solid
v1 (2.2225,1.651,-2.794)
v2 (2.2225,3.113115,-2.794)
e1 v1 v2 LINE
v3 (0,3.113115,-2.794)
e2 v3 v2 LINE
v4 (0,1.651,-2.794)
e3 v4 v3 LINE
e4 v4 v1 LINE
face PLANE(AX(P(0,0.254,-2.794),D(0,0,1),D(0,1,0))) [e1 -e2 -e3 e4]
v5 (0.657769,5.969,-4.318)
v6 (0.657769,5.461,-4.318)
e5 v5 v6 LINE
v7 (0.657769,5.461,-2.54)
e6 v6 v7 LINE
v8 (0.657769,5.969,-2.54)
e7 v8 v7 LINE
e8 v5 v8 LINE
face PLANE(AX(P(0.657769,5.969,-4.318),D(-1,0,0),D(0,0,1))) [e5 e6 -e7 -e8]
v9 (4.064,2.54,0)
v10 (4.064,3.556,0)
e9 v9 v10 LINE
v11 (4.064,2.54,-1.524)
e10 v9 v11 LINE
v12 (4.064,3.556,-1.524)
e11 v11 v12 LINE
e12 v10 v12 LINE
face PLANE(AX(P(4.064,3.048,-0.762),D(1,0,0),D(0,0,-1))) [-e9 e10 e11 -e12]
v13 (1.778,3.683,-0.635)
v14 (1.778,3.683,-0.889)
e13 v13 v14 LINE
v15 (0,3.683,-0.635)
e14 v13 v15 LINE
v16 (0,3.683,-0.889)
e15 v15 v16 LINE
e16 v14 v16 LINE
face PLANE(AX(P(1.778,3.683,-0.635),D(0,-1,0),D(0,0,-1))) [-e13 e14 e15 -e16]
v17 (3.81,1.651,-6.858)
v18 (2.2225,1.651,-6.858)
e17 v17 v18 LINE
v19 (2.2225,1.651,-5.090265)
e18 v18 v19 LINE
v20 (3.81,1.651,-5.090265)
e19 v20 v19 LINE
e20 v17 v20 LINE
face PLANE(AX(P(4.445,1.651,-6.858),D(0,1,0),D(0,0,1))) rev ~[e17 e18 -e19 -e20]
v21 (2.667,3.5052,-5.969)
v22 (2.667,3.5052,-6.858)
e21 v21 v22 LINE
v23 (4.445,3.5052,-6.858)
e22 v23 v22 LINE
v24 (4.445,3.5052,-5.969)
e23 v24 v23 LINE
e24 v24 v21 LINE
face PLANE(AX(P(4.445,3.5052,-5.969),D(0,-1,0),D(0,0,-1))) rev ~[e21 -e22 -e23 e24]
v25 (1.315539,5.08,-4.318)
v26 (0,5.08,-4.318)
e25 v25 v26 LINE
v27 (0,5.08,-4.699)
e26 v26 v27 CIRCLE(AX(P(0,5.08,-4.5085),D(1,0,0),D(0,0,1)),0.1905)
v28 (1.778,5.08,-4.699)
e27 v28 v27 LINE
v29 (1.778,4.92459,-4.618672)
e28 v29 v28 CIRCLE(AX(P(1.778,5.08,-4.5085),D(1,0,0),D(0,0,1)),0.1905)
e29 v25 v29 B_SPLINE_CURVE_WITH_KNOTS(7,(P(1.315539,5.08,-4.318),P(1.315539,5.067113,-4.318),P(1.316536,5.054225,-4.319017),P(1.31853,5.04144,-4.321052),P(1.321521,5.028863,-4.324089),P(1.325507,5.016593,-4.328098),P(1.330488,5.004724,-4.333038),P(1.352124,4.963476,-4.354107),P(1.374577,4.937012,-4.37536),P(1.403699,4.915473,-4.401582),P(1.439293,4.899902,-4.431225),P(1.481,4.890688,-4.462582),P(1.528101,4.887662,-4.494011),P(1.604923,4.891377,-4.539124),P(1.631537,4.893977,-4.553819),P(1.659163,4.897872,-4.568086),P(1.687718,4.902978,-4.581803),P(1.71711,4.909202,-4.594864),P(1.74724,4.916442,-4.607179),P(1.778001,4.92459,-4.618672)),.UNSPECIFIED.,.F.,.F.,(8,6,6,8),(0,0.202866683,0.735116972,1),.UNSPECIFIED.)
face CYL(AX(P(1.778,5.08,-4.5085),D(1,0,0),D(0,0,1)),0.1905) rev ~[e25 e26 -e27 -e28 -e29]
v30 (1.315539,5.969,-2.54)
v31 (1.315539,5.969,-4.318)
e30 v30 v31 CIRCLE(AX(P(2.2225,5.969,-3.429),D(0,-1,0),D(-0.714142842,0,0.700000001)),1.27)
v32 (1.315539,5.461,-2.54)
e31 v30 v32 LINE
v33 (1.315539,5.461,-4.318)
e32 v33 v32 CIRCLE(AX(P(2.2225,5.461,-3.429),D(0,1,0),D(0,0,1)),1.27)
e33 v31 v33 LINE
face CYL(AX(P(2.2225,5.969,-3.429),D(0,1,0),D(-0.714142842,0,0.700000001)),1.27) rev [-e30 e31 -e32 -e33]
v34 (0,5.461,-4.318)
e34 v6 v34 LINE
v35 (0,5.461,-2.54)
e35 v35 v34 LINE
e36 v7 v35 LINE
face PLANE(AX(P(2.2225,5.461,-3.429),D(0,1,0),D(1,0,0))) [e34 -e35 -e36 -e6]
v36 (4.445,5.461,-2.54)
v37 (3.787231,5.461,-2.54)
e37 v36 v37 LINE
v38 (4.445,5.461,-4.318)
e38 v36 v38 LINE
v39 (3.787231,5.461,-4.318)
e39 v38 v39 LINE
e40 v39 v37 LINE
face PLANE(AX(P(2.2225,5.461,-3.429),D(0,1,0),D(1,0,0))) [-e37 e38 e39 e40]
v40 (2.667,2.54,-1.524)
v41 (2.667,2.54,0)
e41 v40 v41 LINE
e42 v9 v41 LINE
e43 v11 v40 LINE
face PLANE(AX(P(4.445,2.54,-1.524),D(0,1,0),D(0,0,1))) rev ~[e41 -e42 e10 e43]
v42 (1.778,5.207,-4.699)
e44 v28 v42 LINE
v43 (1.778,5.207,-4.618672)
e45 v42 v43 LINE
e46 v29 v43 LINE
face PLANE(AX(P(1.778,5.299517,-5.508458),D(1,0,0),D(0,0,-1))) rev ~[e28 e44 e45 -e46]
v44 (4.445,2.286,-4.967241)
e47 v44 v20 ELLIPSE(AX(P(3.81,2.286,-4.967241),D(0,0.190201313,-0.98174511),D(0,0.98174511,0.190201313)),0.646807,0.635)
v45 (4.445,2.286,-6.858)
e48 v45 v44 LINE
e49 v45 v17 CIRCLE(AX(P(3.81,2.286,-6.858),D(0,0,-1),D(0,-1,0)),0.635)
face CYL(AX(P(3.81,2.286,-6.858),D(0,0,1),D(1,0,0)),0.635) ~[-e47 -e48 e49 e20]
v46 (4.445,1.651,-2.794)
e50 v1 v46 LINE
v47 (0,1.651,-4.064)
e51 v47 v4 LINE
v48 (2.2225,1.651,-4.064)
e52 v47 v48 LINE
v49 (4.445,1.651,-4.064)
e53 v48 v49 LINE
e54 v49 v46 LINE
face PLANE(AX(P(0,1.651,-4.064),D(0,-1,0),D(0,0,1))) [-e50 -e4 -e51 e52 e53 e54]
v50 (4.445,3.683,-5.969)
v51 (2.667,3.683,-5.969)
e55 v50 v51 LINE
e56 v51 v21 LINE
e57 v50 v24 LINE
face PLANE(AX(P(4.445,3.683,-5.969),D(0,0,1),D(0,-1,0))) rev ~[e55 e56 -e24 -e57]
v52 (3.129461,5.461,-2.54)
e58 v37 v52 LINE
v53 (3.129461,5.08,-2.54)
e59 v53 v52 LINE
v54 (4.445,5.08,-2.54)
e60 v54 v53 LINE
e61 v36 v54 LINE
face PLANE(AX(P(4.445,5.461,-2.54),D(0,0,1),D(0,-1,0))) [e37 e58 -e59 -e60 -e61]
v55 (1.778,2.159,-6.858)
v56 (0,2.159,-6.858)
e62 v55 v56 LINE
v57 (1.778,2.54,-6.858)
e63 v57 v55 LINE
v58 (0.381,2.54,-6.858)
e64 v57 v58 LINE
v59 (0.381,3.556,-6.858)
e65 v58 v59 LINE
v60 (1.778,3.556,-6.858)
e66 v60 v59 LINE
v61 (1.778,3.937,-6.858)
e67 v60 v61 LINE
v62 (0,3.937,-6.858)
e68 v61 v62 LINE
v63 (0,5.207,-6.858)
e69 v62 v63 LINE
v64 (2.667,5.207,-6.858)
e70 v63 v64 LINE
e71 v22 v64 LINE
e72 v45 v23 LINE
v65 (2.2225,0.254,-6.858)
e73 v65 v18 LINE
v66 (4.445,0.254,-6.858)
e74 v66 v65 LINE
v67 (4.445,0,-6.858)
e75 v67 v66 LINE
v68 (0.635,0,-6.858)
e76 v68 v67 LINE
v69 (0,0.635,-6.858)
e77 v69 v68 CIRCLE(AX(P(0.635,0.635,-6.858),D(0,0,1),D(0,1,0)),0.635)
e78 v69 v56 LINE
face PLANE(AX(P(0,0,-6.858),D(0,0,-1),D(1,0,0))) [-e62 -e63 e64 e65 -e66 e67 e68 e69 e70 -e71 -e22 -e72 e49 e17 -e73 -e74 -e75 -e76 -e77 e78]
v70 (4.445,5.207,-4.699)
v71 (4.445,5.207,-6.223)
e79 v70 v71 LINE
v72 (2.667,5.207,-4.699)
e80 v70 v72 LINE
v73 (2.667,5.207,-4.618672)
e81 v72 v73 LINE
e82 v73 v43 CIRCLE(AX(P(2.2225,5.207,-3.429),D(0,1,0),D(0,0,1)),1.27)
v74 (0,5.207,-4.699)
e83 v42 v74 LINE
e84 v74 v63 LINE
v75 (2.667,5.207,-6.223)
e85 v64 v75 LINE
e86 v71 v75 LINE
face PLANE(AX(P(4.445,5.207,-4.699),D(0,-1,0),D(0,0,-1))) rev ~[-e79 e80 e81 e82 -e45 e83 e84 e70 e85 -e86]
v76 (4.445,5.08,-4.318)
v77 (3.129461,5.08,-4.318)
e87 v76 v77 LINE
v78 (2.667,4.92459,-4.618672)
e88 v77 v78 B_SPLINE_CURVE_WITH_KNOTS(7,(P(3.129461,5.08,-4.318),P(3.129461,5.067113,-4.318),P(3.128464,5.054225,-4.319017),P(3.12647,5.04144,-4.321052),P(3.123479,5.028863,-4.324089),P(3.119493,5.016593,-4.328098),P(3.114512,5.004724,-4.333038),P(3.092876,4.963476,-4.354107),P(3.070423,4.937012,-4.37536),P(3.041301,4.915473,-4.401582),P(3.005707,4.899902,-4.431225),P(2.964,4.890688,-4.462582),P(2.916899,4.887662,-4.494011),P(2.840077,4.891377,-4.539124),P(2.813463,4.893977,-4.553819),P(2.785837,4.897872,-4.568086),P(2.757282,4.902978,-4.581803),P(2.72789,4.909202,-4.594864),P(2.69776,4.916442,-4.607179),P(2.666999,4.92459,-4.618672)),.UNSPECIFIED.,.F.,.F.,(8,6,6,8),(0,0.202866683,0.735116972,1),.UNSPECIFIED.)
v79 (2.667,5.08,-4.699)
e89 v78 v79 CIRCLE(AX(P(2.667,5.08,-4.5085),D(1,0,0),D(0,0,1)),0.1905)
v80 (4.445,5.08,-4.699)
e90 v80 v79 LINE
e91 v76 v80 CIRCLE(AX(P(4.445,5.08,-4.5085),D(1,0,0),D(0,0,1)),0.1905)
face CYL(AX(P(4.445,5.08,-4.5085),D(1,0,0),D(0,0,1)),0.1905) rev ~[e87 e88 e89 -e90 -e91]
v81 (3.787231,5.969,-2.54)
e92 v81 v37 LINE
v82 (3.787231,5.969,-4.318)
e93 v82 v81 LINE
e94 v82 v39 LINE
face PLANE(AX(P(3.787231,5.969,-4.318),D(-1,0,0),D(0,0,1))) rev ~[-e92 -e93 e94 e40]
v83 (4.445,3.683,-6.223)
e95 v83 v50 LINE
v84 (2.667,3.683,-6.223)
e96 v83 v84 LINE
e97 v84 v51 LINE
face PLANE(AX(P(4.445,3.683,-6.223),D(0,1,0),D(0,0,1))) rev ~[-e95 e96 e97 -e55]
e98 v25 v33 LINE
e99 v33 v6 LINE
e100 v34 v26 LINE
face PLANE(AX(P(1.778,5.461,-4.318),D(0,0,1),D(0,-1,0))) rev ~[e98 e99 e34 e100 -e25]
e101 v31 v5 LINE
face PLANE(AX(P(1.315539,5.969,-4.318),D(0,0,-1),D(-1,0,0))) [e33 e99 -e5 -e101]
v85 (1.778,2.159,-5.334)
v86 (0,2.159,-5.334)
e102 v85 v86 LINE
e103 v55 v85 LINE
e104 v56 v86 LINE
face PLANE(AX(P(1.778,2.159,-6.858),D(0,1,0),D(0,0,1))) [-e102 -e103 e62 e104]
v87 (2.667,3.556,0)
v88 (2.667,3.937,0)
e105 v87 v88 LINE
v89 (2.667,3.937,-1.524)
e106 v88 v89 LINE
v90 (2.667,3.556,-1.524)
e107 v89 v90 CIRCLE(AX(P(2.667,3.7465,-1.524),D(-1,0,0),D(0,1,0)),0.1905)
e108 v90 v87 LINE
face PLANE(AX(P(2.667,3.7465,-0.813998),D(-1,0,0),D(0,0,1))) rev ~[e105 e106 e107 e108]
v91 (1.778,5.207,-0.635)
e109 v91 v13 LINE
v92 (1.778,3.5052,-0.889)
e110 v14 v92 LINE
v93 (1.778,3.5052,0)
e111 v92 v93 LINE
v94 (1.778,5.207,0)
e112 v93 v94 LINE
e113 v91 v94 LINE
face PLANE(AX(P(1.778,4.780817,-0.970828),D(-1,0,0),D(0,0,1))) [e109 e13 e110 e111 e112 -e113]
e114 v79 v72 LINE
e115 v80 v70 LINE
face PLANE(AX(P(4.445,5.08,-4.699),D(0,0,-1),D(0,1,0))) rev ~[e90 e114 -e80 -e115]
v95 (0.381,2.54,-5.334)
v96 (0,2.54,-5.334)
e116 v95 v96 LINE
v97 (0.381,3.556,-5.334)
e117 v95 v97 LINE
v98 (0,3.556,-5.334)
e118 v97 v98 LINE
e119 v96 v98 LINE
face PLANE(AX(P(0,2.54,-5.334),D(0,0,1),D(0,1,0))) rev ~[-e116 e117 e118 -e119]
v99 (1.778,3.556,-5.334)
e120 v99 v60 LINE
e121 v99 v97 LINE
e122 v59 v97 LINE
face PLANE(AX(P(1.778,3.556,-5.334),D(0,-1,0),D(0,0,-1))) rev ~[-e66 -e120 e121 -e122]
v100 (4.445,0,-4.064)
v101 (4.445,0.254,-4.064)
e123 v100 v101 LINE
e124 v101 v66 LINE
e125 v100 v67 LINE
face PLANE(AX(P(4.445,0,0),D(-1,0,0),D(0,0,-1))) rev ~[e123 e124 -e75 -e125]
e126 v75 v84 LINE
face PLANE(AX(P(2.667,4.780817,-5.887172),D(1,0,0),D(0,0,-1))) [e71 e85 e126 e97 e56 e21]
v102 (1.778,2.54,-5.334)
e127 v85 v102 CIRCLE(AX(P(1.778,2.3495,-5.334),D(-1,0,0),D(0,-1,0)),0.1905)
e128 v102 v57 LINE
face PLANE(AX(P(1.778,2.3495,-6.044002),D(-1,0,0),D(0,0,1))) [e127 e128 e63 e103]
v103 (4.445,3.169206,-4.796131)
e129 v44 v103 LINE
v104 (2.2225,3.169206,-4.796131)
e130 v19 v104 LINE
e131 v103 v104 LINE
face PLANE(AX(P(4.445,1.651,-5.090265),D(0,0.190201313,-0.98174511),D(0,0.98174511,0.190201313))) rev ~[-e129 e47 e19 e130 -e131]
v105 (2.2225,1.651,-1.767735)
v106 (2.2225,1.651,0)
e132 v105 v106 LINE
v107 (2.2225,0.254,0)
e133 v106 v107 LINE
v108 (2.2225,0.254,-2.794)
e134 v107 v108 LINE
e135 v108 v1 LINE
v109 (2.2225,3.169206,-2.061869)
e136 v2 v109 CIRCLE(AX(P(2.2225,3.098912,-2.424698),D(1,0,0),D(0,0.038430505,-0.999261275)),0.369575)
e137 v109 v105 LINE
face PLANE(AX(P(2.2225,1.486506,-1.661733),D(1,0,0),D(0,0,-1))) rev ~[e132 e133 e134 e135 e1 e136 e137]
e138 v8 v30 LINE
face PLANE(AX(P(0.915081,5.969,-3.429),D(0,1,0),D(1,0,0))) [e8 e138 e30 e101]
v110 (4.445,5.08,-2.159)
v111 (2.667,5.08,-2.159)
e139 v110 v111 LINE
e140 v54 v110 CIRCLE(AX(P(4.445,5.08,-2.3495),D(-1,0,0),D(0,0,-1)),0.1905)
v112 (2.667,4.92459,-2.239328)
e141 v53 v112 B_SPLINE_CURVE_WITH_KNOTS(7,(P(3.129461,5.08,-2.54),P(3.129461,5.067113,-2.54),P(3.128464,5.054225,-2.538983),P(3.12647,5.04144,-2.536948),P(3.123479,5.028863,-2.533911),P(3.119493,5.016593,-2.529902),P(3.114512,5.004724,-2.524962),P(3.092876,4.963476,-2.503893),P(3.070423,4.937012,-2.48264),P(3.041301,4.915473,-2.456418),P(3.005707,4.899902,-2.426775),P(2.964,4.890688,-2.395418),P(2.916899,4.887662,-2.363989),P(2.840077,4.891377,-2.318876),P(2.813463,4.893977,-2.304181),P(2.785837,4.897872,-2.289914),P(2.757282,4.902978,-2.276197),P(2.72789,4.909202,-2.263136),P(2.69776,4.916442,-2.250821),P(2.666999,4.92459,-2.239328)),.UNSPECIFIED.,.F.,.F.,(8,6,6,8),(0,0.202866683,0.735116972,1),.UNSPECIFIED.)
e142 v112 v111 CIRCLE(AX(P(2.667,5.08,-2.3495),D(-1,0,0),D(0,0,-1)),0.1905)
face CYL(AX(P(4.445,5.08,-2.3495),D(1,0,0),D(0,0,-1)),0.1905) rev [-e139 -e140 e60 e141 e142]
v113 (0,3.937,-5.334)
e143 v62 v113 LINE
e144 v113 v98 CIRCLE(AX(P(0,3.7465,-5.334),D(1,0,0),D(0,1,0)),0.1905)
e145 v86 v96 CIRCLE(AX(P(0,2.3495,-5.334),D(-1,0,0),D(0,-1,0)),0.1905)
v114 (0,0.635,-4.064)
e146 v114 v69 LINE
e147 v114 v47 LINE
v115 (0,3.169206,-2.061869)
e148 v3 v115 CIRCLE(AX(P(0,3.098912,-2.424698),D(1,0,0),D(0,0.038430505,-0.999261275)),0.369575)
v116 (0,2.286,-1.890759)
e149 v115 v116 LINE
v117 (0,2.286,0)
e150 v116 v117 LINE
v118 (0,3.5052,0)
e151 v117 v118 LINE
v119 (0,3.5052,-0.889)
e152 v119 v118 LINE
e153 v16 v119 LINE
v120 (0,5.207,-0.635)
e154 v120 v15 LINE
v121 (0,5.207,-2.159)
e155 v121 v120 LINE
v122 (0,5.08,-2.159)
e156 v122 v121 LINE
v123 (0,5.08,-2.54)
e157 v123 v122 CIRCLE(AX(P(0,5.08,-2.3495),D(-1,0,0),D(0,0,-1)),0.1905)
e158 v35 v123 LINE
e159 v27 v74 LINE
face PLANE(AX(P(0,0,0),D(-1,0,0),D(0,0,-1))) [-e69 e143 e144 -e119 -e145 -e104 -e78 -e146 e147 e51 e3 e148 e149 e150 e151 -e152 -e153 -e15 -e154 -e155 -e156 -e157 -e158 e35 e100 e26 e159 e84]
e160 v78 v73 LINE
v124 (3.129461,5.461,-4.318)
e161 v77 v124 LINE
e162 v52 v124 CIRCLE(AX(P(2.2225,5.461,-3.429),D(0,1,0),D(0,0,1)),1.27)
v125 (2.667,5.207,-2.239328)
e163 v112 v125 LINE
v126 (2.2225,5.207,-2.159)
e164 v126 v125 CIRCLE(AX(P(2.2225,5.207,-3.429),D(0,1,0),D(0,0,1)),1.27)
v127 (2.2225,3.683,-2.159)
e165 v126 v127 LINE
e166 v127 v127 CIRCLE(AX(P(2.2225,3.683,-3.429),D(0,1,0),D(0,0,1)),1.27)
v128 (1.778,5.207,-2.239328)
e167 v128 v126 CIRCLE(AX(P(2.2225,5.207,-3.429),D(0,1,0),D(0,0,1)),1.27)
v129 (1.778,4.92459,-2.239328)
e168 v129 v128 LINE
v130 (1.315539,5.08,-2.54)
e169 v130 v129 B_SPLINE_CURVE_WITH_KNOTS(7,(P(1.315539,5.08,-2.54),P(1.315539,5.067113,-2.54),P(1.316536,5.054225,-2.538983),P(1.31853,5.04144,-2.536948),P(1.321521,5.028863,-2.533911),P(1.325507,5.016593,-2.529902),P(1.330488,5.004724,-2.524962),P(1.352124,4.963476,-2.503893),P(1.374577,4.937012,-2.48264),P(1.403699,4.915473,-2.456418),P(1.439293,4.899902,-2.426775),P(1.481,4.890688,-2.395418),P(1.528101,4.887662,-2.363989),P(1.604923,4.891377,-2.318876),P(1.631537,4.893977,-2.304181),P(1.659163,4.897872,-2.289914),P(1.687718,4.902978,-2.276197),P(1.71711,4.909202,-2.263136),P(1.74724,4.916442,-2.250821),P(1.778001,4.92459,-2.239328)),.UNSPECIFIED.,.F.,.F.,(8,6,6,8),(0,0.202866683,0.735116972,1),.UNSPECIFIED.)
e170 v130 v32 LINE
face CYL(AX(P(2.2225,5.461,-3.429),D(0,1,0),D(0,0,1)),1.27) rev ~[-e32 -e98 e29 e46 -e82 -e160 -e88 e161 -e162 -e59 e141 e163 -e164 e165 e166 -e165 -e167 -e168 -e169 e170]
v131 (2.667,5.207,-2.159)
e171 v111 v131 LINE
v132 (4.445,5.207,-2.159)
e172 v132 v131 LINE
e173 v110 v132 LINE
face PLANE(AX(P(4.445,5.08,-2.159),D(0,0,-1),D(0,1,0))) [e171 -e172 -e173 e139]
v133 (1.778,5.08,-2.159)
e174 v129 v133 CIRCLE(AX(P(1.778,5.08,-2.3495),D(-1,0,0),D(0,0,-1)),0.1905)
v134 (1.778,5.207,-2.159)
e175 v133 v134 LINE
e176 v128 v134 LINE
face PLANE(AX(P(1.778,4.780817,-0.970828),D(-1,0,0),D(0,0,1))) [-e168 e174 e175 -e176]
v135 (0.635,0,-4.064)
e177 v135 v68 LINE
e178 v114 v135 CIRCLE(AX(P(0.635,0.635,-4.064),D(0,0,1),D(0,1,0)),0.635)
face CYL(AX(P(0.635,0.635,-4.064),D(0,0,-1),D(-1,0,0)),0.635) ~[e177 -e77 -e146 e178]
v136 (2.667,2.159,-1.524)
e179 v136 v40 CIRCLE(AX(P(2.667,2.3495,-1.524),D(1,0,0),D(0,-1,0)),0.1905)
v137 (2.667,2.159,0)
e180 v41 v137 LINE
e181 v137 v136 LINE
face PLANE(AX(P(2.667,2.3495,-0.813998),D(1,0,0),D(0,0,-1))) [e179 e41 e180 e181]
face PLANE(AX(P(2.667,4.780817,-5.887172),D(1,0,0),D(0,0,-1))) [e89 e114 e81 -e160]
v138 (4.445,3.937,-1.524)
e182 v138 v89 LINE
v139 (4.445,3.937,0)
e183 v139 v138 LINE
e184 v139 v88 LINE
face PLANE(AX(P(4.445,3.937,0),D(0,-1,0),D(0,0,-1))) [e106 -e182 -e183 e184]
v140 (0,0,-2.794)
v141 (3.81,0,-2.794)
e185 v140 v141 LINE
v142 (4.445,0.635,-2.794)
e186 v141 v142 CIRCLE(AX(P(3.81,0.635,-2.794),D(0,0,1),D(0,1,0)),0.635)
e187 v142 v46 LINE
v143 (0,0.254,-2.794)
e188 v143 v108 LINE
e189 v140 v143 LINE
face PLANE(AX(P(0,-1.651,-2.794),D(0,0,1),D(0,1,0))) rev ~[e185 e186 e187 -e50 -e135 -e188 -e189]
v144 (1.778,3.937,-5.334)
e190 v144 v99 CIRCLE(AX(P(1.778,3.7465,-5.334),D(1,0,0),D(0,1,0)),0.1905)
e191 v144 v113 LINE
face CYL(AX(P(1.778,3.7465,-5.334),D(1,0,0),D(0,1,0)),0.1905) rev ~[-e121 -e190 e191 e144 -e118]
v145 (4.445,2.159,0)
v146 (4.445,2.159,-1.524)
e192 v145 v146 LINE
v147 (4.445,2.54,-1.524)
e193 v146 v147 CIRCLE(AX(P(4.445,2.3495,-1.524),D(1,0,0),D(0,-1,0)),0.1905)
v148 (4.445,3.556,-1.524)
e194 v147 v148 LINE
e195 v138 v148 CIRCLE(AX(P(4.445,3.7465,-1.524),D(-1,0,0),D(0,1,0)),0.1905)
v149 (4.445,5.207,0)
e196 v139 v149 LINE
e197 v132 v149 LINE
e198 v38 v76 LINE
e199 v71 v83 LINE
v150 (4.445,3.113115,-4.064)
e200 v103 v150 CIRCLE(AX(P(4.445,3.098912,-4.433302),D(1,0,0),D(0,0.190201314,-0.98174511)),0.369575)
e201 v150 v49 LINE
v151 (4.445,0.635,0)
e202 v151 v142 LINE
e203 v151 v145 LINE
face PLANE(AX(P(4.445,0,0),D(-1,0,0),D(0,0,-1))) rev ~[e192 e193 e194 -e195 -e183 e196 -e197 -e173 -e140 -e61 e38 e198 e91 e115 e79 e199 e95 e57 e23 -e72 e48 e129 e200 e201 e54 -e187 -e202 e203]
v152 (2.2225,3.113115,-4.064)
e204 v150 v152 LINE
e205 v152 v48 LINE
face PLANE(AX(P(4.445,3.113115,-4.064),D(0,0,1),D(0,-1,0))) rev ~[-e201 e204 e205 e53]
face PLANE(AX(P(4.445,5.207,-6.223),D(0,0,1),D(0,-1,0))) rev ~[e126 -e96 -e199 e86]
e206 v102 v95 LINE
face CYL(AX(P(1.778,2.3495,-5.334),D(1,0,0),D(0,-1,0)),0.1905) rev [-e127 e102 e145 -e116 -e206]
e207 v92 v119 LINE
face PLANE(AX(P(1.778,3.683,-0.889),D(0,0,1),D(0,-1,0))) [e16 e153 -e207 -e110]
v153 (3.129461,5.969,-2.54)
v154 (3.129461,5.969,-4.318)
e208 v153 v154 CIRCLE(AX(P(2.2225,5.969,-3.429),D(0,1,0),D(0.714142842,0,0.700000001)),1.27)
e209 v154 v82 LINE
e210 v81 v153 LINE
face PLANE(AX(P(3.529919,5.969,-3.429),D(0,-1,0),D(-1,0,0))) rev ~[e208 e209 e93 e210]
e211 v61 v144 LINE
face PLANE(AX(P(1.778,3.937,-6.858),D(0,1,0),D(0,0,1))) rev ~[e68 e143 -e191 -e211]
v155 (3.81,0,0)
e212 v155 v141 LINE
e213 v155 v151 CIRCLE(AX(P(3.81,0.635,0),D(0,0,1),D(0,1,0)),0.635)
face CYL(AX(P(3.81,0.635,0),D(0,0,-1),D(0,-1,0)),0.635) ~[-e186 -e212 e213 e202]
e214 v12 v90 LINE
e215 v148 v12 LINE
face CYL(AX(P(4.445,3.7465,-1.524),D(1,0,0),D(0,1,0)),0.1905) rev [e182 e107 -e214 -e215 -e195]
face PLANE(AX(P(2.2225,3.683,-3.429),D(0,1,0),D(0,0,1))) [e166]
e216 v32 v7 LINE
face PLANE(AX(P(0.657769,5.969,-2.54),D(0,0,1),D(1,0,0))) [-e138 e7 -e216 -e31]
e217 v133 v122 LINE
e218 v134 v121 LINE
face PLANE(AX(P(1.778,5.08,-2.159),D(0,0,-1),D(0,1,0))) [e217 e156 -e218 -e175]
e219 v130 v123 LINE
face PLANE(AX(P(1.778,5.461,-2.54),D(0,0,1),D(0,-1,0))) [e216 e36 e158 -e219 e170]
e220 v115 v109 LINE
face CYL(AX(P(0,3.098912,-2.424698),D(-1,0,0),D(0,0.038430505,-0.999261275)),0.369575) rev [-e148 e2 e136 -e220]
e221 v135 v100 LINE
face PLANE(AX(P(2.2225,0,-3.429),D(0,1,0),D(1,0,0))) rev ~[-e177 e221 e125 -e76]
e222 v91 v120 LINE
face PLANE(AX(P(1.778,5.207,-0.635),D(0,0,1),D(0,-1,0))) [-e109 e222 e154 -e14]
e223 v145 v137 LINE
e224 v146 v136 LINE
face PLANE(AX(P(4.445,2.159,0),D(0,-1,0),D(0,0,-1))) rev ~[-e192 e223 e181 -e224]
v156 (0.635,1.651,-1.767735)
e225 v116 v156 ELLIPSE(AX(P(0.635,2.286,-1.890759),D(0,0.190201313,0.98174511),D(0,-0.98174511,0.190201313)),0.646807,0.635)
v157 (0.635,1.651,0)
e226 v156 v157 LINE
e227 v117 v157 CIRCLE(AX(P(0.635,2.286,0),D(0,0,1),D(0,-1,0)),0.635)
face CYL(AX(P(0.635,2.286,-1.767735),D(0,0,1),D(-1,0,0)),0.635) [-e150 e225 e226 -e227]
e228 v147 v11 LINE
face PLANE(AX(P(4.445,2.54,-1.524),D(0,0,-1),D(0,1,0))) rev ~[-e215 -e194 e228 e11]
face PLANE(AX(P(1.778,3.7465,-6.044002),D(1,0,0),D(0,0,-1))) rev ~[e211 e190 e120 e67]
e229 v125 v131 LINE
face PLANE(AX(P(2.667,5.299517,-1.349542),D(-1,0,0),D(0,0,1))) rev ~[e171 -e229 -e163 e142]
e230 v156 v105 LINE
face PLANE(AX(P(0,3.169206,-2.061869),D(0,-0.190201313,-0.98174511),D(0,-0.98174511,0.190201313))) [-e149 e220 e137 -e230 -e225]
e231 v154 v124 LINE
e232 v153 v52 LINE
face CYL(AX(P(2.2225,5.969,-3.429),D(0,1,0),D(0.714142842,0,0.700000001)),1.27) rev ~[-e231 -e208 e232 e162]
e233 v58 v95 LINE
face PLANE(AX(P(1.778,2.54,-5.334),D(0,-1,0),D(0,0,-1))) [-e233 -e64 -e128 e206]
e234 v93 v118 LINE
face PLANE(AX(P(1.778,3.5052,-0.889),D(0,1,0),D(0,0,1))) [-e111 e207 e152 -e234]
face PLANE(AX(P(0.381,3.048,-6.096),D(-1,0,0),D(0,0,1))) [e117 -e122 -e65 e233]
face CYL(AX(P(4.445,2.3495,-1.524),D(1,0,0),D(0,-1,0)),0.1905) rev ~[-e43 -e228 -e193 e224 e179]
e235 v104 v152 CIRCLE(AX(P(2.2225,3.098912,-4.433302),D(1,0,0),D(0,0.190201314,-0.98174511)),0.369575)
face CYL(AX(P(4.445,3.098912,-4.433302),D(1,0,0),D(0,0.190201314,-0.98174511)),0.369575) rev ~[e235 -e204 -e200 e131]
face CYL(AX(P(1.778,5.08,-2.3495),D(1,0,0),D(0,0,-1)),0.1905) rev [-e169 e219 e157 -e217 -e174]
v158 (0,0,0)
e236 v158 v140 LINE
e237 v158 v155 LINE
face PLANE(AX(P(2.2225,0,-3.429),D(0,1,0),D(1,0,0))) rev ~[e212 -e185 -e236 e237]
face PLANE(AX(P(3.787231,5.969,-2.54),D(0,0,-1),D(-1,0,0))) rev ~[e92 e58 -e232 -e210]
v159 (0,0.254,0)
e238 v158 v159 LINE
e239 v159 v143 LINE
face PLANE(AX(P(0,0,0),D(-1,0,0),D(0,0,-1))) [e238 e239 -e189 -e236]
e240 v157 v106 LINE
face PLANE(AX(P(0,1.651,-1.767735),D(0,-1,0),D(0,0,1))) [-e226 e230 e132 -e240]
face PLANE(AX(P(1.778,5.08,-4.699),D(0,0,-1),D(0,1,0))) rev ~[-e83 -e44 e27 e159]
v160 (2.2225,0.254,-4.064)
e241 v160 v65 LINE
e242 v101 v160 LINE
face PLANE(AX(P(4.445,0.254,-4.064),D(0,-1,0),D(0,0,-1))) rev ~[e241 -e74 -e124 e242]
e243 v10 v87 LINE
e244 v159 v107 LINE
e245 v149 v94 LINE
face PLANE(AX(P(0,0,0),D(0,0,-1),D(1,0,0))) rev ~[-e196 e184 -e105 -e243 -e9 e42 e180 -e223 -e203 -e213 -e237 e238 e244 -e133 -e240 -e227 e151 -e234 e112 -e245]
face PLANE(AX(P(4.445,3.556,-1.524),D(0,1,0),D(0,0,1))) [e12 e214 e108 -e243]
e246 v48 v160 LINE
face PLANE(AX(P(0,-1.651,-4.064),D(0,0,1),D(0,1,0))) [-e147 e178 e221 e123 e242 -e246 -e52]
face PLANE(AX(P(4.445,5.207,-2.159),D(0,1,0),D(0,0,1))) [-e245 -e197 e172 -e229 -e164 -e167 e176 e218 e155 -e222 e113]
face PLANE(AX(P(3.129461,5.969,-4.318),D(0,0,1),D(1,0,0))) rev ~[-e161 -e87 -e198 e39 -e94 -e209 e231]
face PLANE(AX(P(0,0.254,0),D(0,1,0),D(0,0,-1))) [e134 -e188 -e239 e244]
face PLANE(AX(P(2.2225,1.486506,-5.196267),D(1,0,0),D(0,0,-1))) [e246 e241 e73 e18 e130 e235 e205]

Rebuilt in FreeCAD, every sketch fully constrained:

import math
import FreeCAD as App
import Part
import Sketcher
from FreeCAD import Vector
Q = App.Units.Quantity


def edges_at(feature, points):
    """Names of the edges that pass closest to the given points."""
    edges = feature.Shape.Edges
    near = lambda p: min(range(len(edges)), key=lambda i: edges[i].distToShape(Part.Vertex(*p))[0])
    return sorted({f"Edge{near(p) + 1}" for p in points})

doc = App.newDocument("Part")
body = doc.addObject("PartDesign::Body", "Body")

# Sketch on XZ plane
sketch1 = body.newObject("Sketcher::SketchObject", "Sketch")
sketch1.AttachmentSupport = (doc.getObject("XZ_Plane"), [""])
sketch1.MapMode = "FlatFace"
sketch1.addGeometry([
    Part.LineSegment(Vector(0, -6.9, 0), Vector(0, 0, 0)),
    Part.LineSegment(Vector(0, 0, 0), Vector(4.4, 0, 0)),
    Part.LineSegment(Vector(4.4, 0, 0), Vector(4.4, -6.9, 0)),
    Part.LineSegment(Vector(4.4, -6.9, 0), Vector(0, -6.9, 0)),
], False)
sketch1.addConstraint([
    Sketcher.Constraint("Coincident", 0, 2, 1, 1),
    Sketcher.Constraint("Coincident", 1, 2, 2, 1),
    Sketcher.Constraint("Coincident", 2, 2, 3, 1),
    Sketcher.Constraint("Coincident", 3, 2, 0, 1),
    Sketcher.Constraint("Vertical", 0),
    Sketcher.Constraint("Horizontal", 1),
    Sketcher.Constraint("Vertical", 2),
    Sketcher.Constraint("Horizontal", 3),
    Sketcher.Constraint("Coincident", 0, 2, -1, 1),
    Sketcher.Constraint("DistanceY", 0, 1, 0, 2, Q("0.27 in")),
    Sketcher.Constraint("DistanceX", 1, 1, 1, 2, Q("0.175 in")),
])
pad1 = body.newObject("PartDesign::Pad", "Pad")
pad1.Profile = sketch1
pad1.Length = Q("0.215 in")
pad1.Reversed = True

# Sketch on XZ plane
sketch2 = body.newObject("Sketcher::SketchObject", "Sketch001")
sketch2.AttachmentSupport = (doc.getObject("XZ_Plane"), [""])
sketch2.MapMode = "FlatFace"
sketch2.AttachmentOffset = App.Placement(Vector(0, 0, -0.215 * 25.4), App.Rotation())
sketch2.addGeometry(Part.Circle(Vector(2.2, -3.4, 0), Vector(0, 0, 1), 1.3), False)
sketch2.addConstraint([
    Sketcher.Constraint("Diameter", 0, Q("0.1 in")),
    Sketcher.Constraint("DistanceY", 0, 3, -1, 1, Q("0.135 in")),
    Sketcher.Constraint("DistanceX", -1, 1, 0, 3, Q("0.0875 in")),
])
pocket1 = body.newObject("PartDesign::Pocket", "Pocket")
pocket1.Profile = sketch2
pocket1.Length = Q("0.07 in")
pocket1.Reversed = True

# Sketch on YZ plane
sketch3 = body.newObject("Sketcher::SketchObject", "Sketch002")
sketch3.AttachmentSupport = (doc.getObject("YZ_Plane"), [""])
sketch3.MapMode = "FlatFace"
sketch3.addGeometry([
    Part.LineSegment(Vector(1.7, -4.1, 0), Vector(-1.7, -4.1, 0)),
    Part.LineSegment(Vector(-1.7, -4.1, 0), Vector(-1.7, -2.8, 0)),
    Part.LineSegment(Vector(-1.7, -2.8, 0), Vector(1.7, -2.8, 0)),
    Part.LineSegment(Vector(1.7, -2.8, 0), Vector(1.7, -4.1, 0)),
], False)
sketch3.addConstraint([
    Sketcher.Constraint("Coincident", 0, 2, 1, 1),
    Sketcher.Constraint("Coincident", 1, 2, 2, 1),
    Sketcher.Constraint("Coincident", 2, 2, 3, 1),
    Sketcher.Constraint("Coincident", 3, 2, 0, 1),
    Sketcher.Constraint("Horizontal", 0),
    Sketcher.Constraint("Vertical", 1),
    Sketcher.Constraint("Horizontal", 2),
    Sketcher.Constraint("Vertical", 3),
    Sketcher.Constraint("DistanceX", 0, 2, 0, 1, Q("0.13 in")),
    Sketcher.Constraint("DistanceY", 1, 1, 1, 2, Q("0.05 in")),
    Sketcher.Constraint("DistanceY", 0, 2, -1, 1, Q("0.16 in")),
    Sketcher.Constraint("DistanceX", 0, 2, -1, 1, Q("0.065 in")),
])
pocket2 = body.newObject("PartDesign::Pocket", "Pocket001")
pocket2.Profile = sketch3
pocket2.Type = "ThroughAll"
pocket2.Reversed = True

# Sketch on YZ plane
sketch4 = body.newObject("Sketcher::SketchObject", "Sketch003")
sketch4.AttachmentSupport = (doc.getObject("YZ_Plane"), [""])
sketch4.MapMode = "FlatFace"
sketch4.addGeometry([
    Part.ArcOfCircle(Part.Circle(Vector(3.1, -2.42, 0), Vector(0, 0, 1), 0.37), math.radians(-88), math.radians(79)),  # 0
    Part.LineSegment(Vector(3.11, -2.79, 0), Vector(0.25, -2.79, 0)),  # 1
    Part.LineSegment(Vector(0.25, -2.79, 0), Vector(0.25, 0, 0)),  # 2
    Part.LineSegment(Vector(0.25, 0, 0), Vector(1.65, 0, 0)),  # 3
    Part.LineSegment(Vector(1.65, 0, 0), Vector(1.65, -1.77, 0)),  # 4
    Part.LineSegment(Vector(1.65, -1.77, 0), Vector(3.17, -2.06, 0)),  # 5
], False)
sketch4.addConstraint([
    Sketcher.Constraint("Coincident", 0, 1, 1, 1),
    Sketcher.Constraint("Coincident", 1, 2, 2, 1),
    Sketcher.Constraint("Coincident", 2, 2, 3, 1),
    Sketcher.Constraint("Coincident", 3, 2, 4, 1),
    Sketcher.Constraint("Coincident", 4, 2, 5, 1),
    Sketcher.Constraint("Tangent", 5, 2, 0, 2),
    Sketcher.Constraint("Horizontal", 1),
    Sketcher.Constraint("Vertical", 2),
    Sketcher.Constraint("Horizontal", 3),
    Sketcher.Constraint("Vertical", 4),
    Sketcher.Constraint("PointOnObject", 2, 2, -1),
    Sketcher.Constraint("DistanceY", 2, 1, 2, 2, Q("0.11 in")),
    Sketcher.Constraint("DistanceX", 3, 1, 3, 2, Q("0.055 in")),
    Sketcher.Constraint("DistanceX", -1, 1, 1, 2, Q("0.01 in")),
    Sketcher.Constraint("Radius", 0, Q("0.369575 mm")),
    Sketcher.Constraint("DistanceX", 1, 2, 1, 1, Q("2.859115 mm")),
    Sketcher.Constraint("DistanceY", 4, 2, 4, 1, Q("1.767735 mm")),
    Sketcher.Constraint("DistanceX", -1, 1, 0, 3, Q("3.098912 mm")),
])
pocket3 = body.newObject("PartDesign::Pocket", "Pocket002")
pocket3.Profile = sketch4
pocket3.Length = Q("0.0875 in")
pocket3.Reversed = True

# Sketch on YZ plane
sketch5 = body.newObject("Sketcher::SketchObject", "Sketch004")
sketch5.AttachmentSupport = (doc.getObject("YZ_Plane"), [""])
sketch5.MapMode = "FlatFace"
sketch5.AttachmentOffset = App.Placement(Vector(0, 0, 0.175 * 25.4), App.Rotation())
sketch5.addGeometry([
    Part.LineSegment(Vector(0.25, -6.86, 0), Vector(1.65, -6.86, 0)),  # 0
    Part.LineSegment(Vector(1.65, -6.86, 0), Vector(1.65, -5.09, 0)),  # 1
    Part.LineSegment(Vector(1.65, -5.09, 0), Vector(3.17, -4.8, 0)),  # 2
    Part.ArcOfCircle(Part.Circle(Vector(3.1, -4.43, 0), Vector(0, 0, 1), 0.37), math.radians(-79), math.radians(88)),  # 3
    Part.LineSegment(Vector(3.11, -4.06, 0), Vector(0.25, -4.06, 0)),  # 4
    Part.LineSegment(Vector(0.25, -4.06, 0), Vector(0.25, -6.86, 0)),  # 5
], False)
sketch5.addConstraint([
    Sketcher.Constraint("Coincident", 0, 2, 1, 1),
    Sketcher.Constraint("Coincident", 1, 2, 2, 1),
    Sketcher.Constraint("Tangent", 2, 2, 3, 1),
    Sketcher.Constraint("Coincident", 3, 2, 4, 1),
    Sketcher.Constraint("Coincident", 4, 2, 5, 1),
    Sketcher.Constraint("Coincident", 5, 2, 0, 1),
    Sketcher.Constraint("Horizontal", 0),
    Sketcher.Constraint("Vertical", 1),
    Sketcher.Constraint("Horizontal", 4),
    Sketcher.Constraint("Vertical", 5),
    Sketcher.Constraint("DistanceY", 5, 2, 5, 1, Q("0.11 in")),
    Sketcher.Constraint("DistanceX", 0, 1, 0, 2, Q("0.055 in")),
    Sketcher.Constraint("DistanceY", 0, 2, -1, 1, Q("0.27 in")),
    Sketcher.Constraint("DistanceX", -1, 1, 4, 2, Q("0.01 in")),
    Sketcher.Constraint("Radius", 3, Q("0.369575 mm")),
    Sketcher.Constraint("DistanceX", 4, 2, 4, 1, Q("2.859115 mm")),
    Sketcher.Constraint("DistanceY", 1, 1, 1, 2, Q("1.767735 mm")),
    Sketcher.Constraint("DistanceX", -1, 1, 3, 3, Q("3.098912 mm")),
])
pocket4 = body.newObject("PartDesign::Pocket", "Pocket003")
pocket4.Profile = sketch5
pocket4.Length = Q("0.0875 in")

# Sketch on YZ plane
sketch6 = body.newObject("Sketcher::SketchObject", "Sketch005")
sketch6.AttachmentSupport = (doc.getObject("YZ_Plane"), [""])
sketch6.MapMode = "FlatFace"
sketch6.AttachmentOffset = App.Placement(Vector(0, 0, 0.175 * 25.4), App.Rotation())
sketch6.addGeometry([
    Part.LineSegment(Vector(2.16, 0, 0), Vector(2.16, -1.52, 0)),  # 0
    Part.ArcOfCircle(Part.Circle(Vector(2.35, -1.52, 0), Vector(0, 0, 1), 0.19), math.radians(180), math.radians(360)),  # 1
    Part.LineSegment(Vector(2.54, -1.52, 0), Vector(2.54, 0, 0)),  # 2
    Part.LineSegment(Vector(2.54, 0, 0), Vector(2.16, 0, 0)),  # 3
    Part.LineSegment(Vector(3.94, -1.52, 0), Vector(3.94, 0, 0)),  # 4
    Part.LineSegment(Vector(3.94, 0, 0), Vector(3.56, 0, 0)),  # 5
    Part.LineSegment(Vector(3.56, 0, 0), Vector(3.56, -1.52, 0)),  # 6
    Part.ArcOfCircle(Part.Circle(Vector(3.75, -1.52, 0), Vector(0, 0, 1), 0.19), math.radians(180), math.radians(360)),  # 7
    Part.ArcOfCircle(Part.Circle(Vector(5.08, -2.35, 0), Vector(0, 0, 1), 0.19), math.radians(90), math.radians(270)),  # 8
    Part.LineSegment(Vector(5.08, -2.54, 0), Vector(5.46, -2.54, 0)),  # 9
    Part.LineSegment(Vector(5.46, -2.54, 0), Vector(5.46, 0, 0)),  # 10
    Part.LineSegment(Vector(5.46, 0, 0), Vector(5.21, 0, 0)),  # 11
    Part.LineSegment(Vector(5.21, 0, 0), Vector(5.21, -2.16, 0)),  # 12
    Part.LineSegment(Vector(5.21, -2.16, 0), Vector(5.08, -2.16, 0)),  # 13
    Part.LineSegment(Vector(5.08, -4.7, 0), Vector(5.21, -4.7, 0)),  # 14
    Part.LineSegment(Vector(5.21, -4.7, 0), Vector(5.21, -6.22, 0)),  # 15
    Part.LineSegment(Vector(5.21, -6.22, 0), Vector(3.68, -6.22, 0)),  # 16
    Part.LineSegment(Vector(3.68, -6.22, 0), Vector(3.68, -5.97, 0)),  # 17
    Part.LineSegment(Vector(3.68, -5.97, 0), Vector(3.51, -5.97, 0)),  # 18
    Part.LineSegment(Vector(3.51, -5.97, 0), Vector(3.51, -6.86, 0)),  # 19
    Part.LineSegment(Vector(3.51, -6.86, 0), Vector(5.46, -6.86, 0)),  # 20
    Part.LineSegment(Vector(5.46, -6.86, 0), Vector(5.46, -4.32, 0)),  # 21
    Part.LineSegment(Vector(5.46, -4.32, 0), Vector(5.08, -4.32, 0)),  # 22
    Part.ArcOfCircle(Part.Circle(Vector(5.08, -4.51, 0), Vector(0, 0, 1), 0.19), math.radians(90), math.radians(270)),  # 23
], False)
sketch6.addConstraint([
    Sketcher.Constraint("Tangent", 0, 2, 1, 1),
    Sketcher.Constraint("Tangent", 1, 2, 2, 1),
    Sketcher.Constraint("Coincident", 2, 2, 3, 1),
    Sketcher.Constraint("Coincident", 3, 2, 0, 1),
    Sketcher.Constraint("Coincident", 4, 2, 5, 1),
    Sketcher.Constraint("Coincident", 5, 2, 6, 1),
    Sketcher.Constraint("Tangent", 6, 2, 7, 1),
    Sketcher.Constraint("Tangent", 7, 2, 4, 1),
    Sketcher.Constraint("Tangent", 8, 2, 9, 1),
    Sketcher.Constraint("Coincident", 9, 2, 10, 1),
    Sketcher.Constraint("Coincident", 10, 2, 11, 1),
    Sketcher.Constraint("Coincident", 11, 2, 12, 1),
    Sketcher.Constraint("Coincident", 12, 2, 13, 1),
    Sketcher.Constraint("Tangent", 13, 2, 8, 1),
    Sketcher.Constraint("Coincident", 14, 2, 15, 1),
    Sketcher.Constraint("Coincident", 15, 2, 16, 1),
    Sketcher.Constraint("Coincident", 16, 2, 17, 1),
    Sketcher.Constraint("Coincident", 17, 2, 18, 1),
    Sketcher.Constraint("Coincident", 18, 2, 19, 1),
    Sketcher.Constraint("Coincident", 19, 2, 20, 1),
    Sketcher.Constraint("Coincident", 20, 2, 21, 1),
    Sketcher.Constraint("Coincident", 21, 2, 22, 1),
    Sketcher.Constraint("Tangent", 22, 2, 23, 1),
    Sketcher.Constraint("Tangent", 23, 2, 14, 1),
    Sketcher.Constraint("Vertical", 0),
    Sketcher.Constraint("Vertical", 2),
    Sketcher.Constraint("Horizontal", 3),
    Sketcher.Constraint("Vertical", 4),
    Sketcher.Constraint("Horizontal", 5),
    Sketcher.Constraint("Vertical", 6),
    Sketcher.Constraint("Horizontal", 9),
    Sketcher.Constraint("Vertical", 10),
    Sketcher.Constraint("Horizontal", 11),
    Sketcher.Constraint("Vertical", 12),
    Sketcher.Constraint("Horizontal", 13),
    Sketcher.Constraint("Horizontal", 14),
    Sketcher.Constraint("Vertical", 15),
    Sketcher.Constraint("Horizontal", 16),
    Sketcher.Constraint("Vertical", 17),
    Sketcher.Constraint("Horizontal", 18),
    Sketcher.Constraint("Vertical", 19),
    Sketcher.Constraint("Horizontal", 20),
    Sketcher.Constraint("Vertical", 21),
    Sketcher.Constraint("Horizontal", 22),
    Sketcher.Constraint("Equal", 1, 7),
    Sketcher.Constraint("Equal", 7, 8),
    Sketcher.Constraint("Equal", 8, 23),
    Sketcher.Constraint("PointOnObject", 2, 2, -1),
    Sketcher.Constraint("PointOnObject", 4, 2, -1),
    Sketcher.Constraint("PointOnObject", 10, 2, -1),
    Sketcher.Constraint("Horizontal", 1, 3, 7, 3),
    Sketcher.Constraint("Vertical", 8, 3, 23, 3),
    Sketcher.Constraint("Vertical", 12, 2, 14, 2),
    Sketcher.Constraint("Vertical", 10, 2, 20, 2),
    Sketcher.Constraint("Equal", 5, 9),
    Sketcher.Constraint("Equal", 16, 0),
    Sketcher.Constraint("Equal", 6, 15),
    Sketcher.Constraint("Equal", 11, 17),
    Sketcher.Constraint("Equal", 10, 21),
    Sketcher.Constraint("DistanceY", 10, 1, 10, 2, Q("0.1 in")),
    Sketcher.Constraint("DistanceX", 11, 2, 11, 1, Q("0.01 in")),
    Sketcher.Constraint("DistanceX", 16, 2, 16, 1, Q("0.06 in")),
    Sketcher.Constraint("DistanceX", -1, 1, 8, 3, Q("0.2 in")),
    Sketcher.Constraint("DistanceX", -1, 1, 1, 2, Q("0.1 in")),
    Sketcher.Constraint("Radius", 1, Q("0.0075 in")),
    Sketcher.Constraint("DistanceY", 14, 2, 12, 2, Q("0.1 in")),
    Sketcher.Constraint("DistanceX", 18, 2, 18, 1, Q("0.007 in")),
    Sketcher.Constraint("DistanceX", -1, 1, 5, 2, Q("0.14 in")),
])
pocket5 = body.newObject("PartDesign::Pocket", "Pocket004")
pocket5.Profile = sketch6
pocket5.Length = Q("0.07 in")

# Sketch on YZ plane
sketch7 = body.newObject("Sketcher::SketchObject", "Sketch006")
sketch7.AttachmentSupport = (doc.getObject("YZ_Plane"), [""])
sketch7.MapMode = "FlatFace"
sketch7.AttachmentOffset = App.Placement(Vector(0, 0, 0.07 * 25.4), App.Rotation())
sketch7.addGeometry([
    Part.LineSegment(Vector(2.16, -6.86, 0), Vector(2.16, -5.33, 0)),  # 0
    Part.ArcOfCircle(Part.Circle(Vector(2.35, -5.33, 0), Vector(0, 0, 1), 0.19), math.radians(0), math.radians(180)),  # 1
    Part.LineSegment(Vector(2.54, -5.33, 0), Vector(2.54, -6.86, 0)),  # 2
    Part.LineSegment(Vector(2.54, -6.86, 0), Vector(2.16, -6.86, 0)),  # 3
    Part.LineSegment(Vector(3.94, -5.33, 0), Vector(3.94, -6.86, 0)),  # 4
    Part.LineSegment(Vector(3.94, -6.86, 0), Vector(3.56, -6.86, 0)),  # 5
    Part.LineSegment(Vector(3.56, -6.86, 0), Vector(3.56, -5.33, 0)),  # 6
    Part.ArcOfCircle(Part.Circle(Vector(3.75, -5.33, 0), Vector(0, 0, 1), 0.19), math.radians(0), math.radians(180)),  # 7
    Part.ArcOfCircle(Part.Circle(Vector(5.08, -4.51, 0), Vector(0, 0, 1), 0.19), math.radians(90), math.radians(270)),  # 8
    Part.LineSegment(Vector(5.08, -4.32, 0), Vector(5.46, -4.32, 0)),  # 9
    Part.LineSegment(Vector(5.46, -4.32, 0), Vector(5.46, -6.86, 0)),  # 10
    Part.LineSegment(Vector(5.46, -6.86, 0), Vector(5.21, -6.86, 0)),  # 11
    Part.LineSegment(Vector(5.21, -6.86, 0), Vector(5.21, -4.7, 0)),  # 12
    Part.LineSegment(Vector(5.21, -4.7, 0), Vector(5.08, -4.7, 0)),  # 13
    Part.LineSegment(Vector(5.08, -2.16, 0), Vector(5.21, -2.16, 0)),  # 14
    Part.LineSegment(Vector(5.21, -2.16, 0), Vector(5.21, -0.64, 0)),  # 15
    Part.LineSegment(Vector(5.21, -0.64, 0), Vector(3.68, -0.64, 0)),  # 16
    Part.LineSegment(Vector(3.68, -0.64, 0), Vector(3.68, -0.89, 0)),  # 17
    Part.LineSegment(Vector(3.68, -0.89, 0), Vector(3.51, -0.89, 0)),  # 18
    Part.LineSegment(Vector(3.51, -0.89, 0), Vector(3.51, 0, 0)),  # 19
    Part.LineSegment(Vector(3.51, 0, 0), Vector(5.46, 0, 0)),  # 20
    Part.LineSegment(Vector(5.46, 0, 0), Vector(5.46, -2.54, 0)),  # 21
    Part.LineSegment(Vector(5.46, -2.54, 0), Vector(5.08, -2.54, 0)),  # 22
    Part.ArcOfCircle(Part.Circle(Vector(5.08, -2.35, 0), Vector(0, 0, 1), 0.19), math.radians(90), math.radians(270)),  # 23
], False)
sketch7.addConstraint([
    Sketcher.Constraint("Tangent", 0, 2, 1, 2),
    Sketcher.Constraint("Tangent", 1, 1, 2, 1),
    Sketcher.Constraint("Coincident", 2, 2, 3, 1),
    Sketcher.Constraint("Coincident", 3, 2, 0, 1),
    Sketcher.Constraint("Coincident", 4, 2, 5, 1),
    Sketcher.Constraint("Coincident", 5, 2, 6, 1),
    Sketcher.Constraint("Tangent", 6, 2, 7, 2),
    Sketcher.Constraint("Tangent", 7, 1, 4, 1),
    Sketcher.Constraint("Tangent", 8, 1, 9, 1),
    Sketcher.Constraint("Coincident", 9, 2, 10, 1),
    Sketcher.Constraint("Coincident", 10, 2, 11, 1),
    Sketcher.Constraint("Coincident", 11, 2, 12, 1),
    Sketcher.Constraint("Coincident", 12, 2, 13, 1),
    Sketcher.Constraint("Tangent", 13, 2, 8, 2),
    Sketcher.Constraint("Coincident", 14, 2, 15, 1),
    Sketcher.Constraint("Coincident", 15, 2, 16, 1),
    Sketcher.Constraint("Coincident", 16, 2, 17, 1),
    Sketcher.Constraint("Coincident", 17, 2, 18, 1),
    Sketcher.Constraint("Coincident", 18, 2, 19, 1),
    Sketcher.Constraint("Coincident", 19, 2, 20, 1),
    Sketcher.Constraint("Coincident", 20, 2, 21, 1),
    Sketcher.Constraint("Coincident", 21, 2, 22, 1),
    Sketcher.Constraint("Tangent", 22, 2, 23, 2),
    Sketcher.Constraint("Tangent", 23, 1, 14, 1),
    Sketcher.Constraint("Vertical", 0),
    Sketcher.Constraint("Vertical", 2),
    Sketcher.Constraint("Horizontal", 3),
    Sketcher.Constraint("Vertical", 4),
    Sketcher.Constraint("Horizontal", 5),
    Sketcher.Constraint("Vertical", 6),
    Sketcher.Constraint("Horizontal", 9),
    Sketcher.Constraint("Vertical", 10),
    Sketcher.Constraint("Horizontal", 11),
    Sketcher.Constraint("Vertical", 12),
    Sketcher.Constraint("Horizontal", 13),
    Sketcher.Constraint("Horizontal", 14),
    Sketcher.Constraint("Vertical", 15),
    Sketcher.Constraint("Horizontal", 16),
    Sketcher.Constraint("Vertical", 17),
    Sketcher.Constraint("Horizontal", 18),
    Sketcher.Constraint("Vertical", 19),
    Sketcher.Constraint("Horizontal", 20),
    Sketcher.Constraint("Vertical", 21),
    Sketcher.Constraint("Horizontal", 22),
    Sketcher.Constraint("Equal", 1, 7),
    Sketcher.Constraint("Equal", 7, 8),
    Sketcher.Constraint("Equal", 8, 23),
    Sketcher.Constraint("PointOnObject", 19, 2, -1),
    Sketcher.Constraint("Horizontal", 1, 3, 7, 3),
    Sketcher.Constraint("Horizontal", 3, 2, 4, 2),
    Sketcher.Constraint("Horizontal", 5, 2, 10, 2),
    Sketcher.Constraint("Vertical", 8, 3, 23, 3),
    Sketcher.Constraint("Vertical", 12, 2, 14, 2),
    Sketcher.Constraint("Vertical", 10, 2, 20, 2),
    Sketcher.Constraint("Equal", 5, 9),
    Sketcher.Constraint("Equal", 16, 0),
    Sketcher.Constraint("Equal", 6, 15),
    Sketcher.Constraint("Equal", 11, 17),
    Sketcher.Constraint("Equal", 10, 21),
    Sketcher.Constraint("DistanceY", 10, 2, 10, 1, Q("0.1 in")),
    Sketcher.Constraint("DistanceX", 11, 2, 11, 1, Q("0.01 in")),
    Sketcher.Constraint("DistanceX", 16, 2, 16, 1, Q("0.06 in")),
    Sketcher.Constraint("DistanceX", -1, 1, 8, 3, Q("0.2 in")),
    Sketcher.Constraint("DistanceX", -1, 1, 1, 1, Q("0.1 in")),
    Sketcher.Constraint("Radius", 1, Q("0.0075 in")),
    Sketcher.Constraint("DistanceY", 12, 2, 14, 2, Q("0.1 in")),
    Sketcher.Constraint("DistanceX", 18, 2, 18, 1, Q("0.007 in")),
    Sketcher.Constraint("DistanceX", -1, 1, 5, 2, Q("0.14 in")),
])
pocket6 = body.newObject("PartDesign::Pocket", "Pocket005")
pocket6.Profile = sketch7
pocket6.Length = Q("0.07 in")
doc.recompute()

fillet = body.newObject("PartDesign::Fillet", "Fillet")
fillet.Base = (pocket6, edges_at(pocket6, [
    (0, 1.651, -0.884),
    (4.445, 0, -1.397),
    (0, 0, -5.461),
    (4.445, 1.651, -5.974),
]))
fillet.Radius = Q("0.025 in")

# Sketch on XY plane
sketch8 = body.newObject("Sketcher::SketchObject", "Sketch007")
sketch8.AttachmentSupport = (doc.getObject("XY_Plane"), [""])
sketch8.MapMode = "FlatFace"
sketch8.AttachmentOffset = App.Placement(Vector(0, 0, -0.27 * 25.4), App.Rotation())
sketch8.addGeometry([
    Part.LineSegment(Vector(2.67, 5.46, 0), Vector(2.67, 5.21, 0)),
    Part.LineSegment(Vector(2.67, 5.21, 0), Vector(1.78, 5.21, 0)),
    Part.LineSegment(Vector(1.78, 5.21, 0), Vector(1.78, 5.46, 0)),
    Part.LineSegment(Vector(1.78, 5.46, 0), Vector(2.67, 5.46, 0)),
], False)
sketch8.addConstraint([
    Sketcher.Constraint("Coincident", 0, 2, 1, 1),
    Sketcher.Constraint("Coincident", 1, 2, 2, 1),
    Sketcher.Constraint("Coincident", 2, 2, 3, 1),
    Sketcher.Constraint("Coincident", 3, 2, 0, 1),
    Sketcher.Constraint("Vertical", 0),
    Sketcher.Constraint("Horizontal", 1),
    Sketcher.Constraint("Vertical", 2),
    Sketcher.Constraint("Horizontal", 3),
    Sketcher.Constraint("DistanceY", 0, 2, 0, 1, Q("0.01 in")),
    Sketcher.Constraint("DistanceX", 1, 2, 1, 1, Q("0.035 in")),
    Sketcher.Constraint("DistanceX", -1, 1, 1, 2, Q("0.07 in")),
    Sketcher.Constraint("DistanceY", -1, 1, 0, 2, Q("0.205 in")),
])
pocket7 = body.newObject("PartDesign::Pocket", "Pocket006")
pocket7.Profile = sketch8
pocket7.Type = "ThroughAll"
pocket7.Reversed = True

# Sketch on XZ plane
sketch9 = body.newObject("Sketcher::SketchObject", "Sketch008")
sketch9.AttachmentSupport = (doc.getObject("XZ_Plane"), [""])
sketch9.MapMode = "FlatFace"
sketch9.AttachmentOffset = App.Placement(Vector(0, 0, -0.235 * 25.4), App.Rotation())
sketch9.addGeometry([
    Part.LineSegment(Vector(3.8, -4.3, 0), Vector(3.1, -4.3, 0)),  # 0
    Part.ArcOfCircle(Part.Circle(Vector(2.2, -3.4, 0), Vector(0, 0, 1), 1.3), math.radians(-44), math.radians(44)),  # 1
    Part.LineSegment(Vector(3.1, -2.5, 0), Vector(3.8, -2.5, 0)),  # 2
    Part.LineSegment(Vector(3.8, -2.5, 0), Vector(3.8, -4.3, 0)),  # 3
    Part.LineSegment(Vector(1.3, -4.3, 0), Vector(0.7, -4.3, 0)),  # 4
    Part.LineSegment(Vector(0.7, -4.3, 0), Vector(0.7, -2.5, 0)),  # 5
    Part.LineSegment(Vector(0.7, -2.5, 0), Vector(1.3, -2.5, 0)),  # 6
    Part.ArcOfCircle(Part.Circle(Vector(2.2, -3.4, 0), Vector(0, 0, 1), 1.3), math.radians(136), math.radians(224)),  # 7
], False)
sketch9.addConstraint([
    Sketcher.Constraint("Coincident", 0, 2, 1, 1),
    Sketcher.Constraint("Coincident", 1, 2, 2, 1),
    Sketcher.Constraint("Coincident", 2, 2, 3, 1),
    Sketcher.Constraint("Coincident", 3, 2, 0, 1),
    Sketcher.Constraint("Coincident", 4, 2, 5, 1),
    Sketcher.Constraint("Coincident", 5, 2, 6, 1),
    Sketcher.Constraint("Coincident", 6, 2, 7, 1),
    Sketcher.Constraint("Coincident", 7, 2, 4, 1),
    Sketcher.Constraint("Horizontal", 0),
    Sketcher.Constraint("Horizontal", 2),
    Sketcher.Constraint("Vertical", 3),
    Sketcher.Constraint("Horizontal", 4),
    Sketcher.Constraint("Vertical", 5),
    Sketcher.Constraint("Horizontal", 6),
    Sketcher.Constraint("Coincident", 7, 3, 1, 3),
    Sketcher.Constraint("Equal", 1, 7),
    Sketcher.Constraint("Horizontal", 3, 2, 4, 2),
    Sketcher.Constraint("Horizontal", 2, 2, 5, 2),
    Sketcher.Constraint("Vertical", 0, 2, 1, 2),
    Sketcher.Constraint("Equal", 2, 4),
    Sketcher.Constraint("Radius", 1, Q("0.05 in")),
    Sketcher.Constraint("DistanceY", 3, 2, 3, 1, Q("0.07 in")),
    Sketcher.Constraint("DistanceY", 1, 2, -1, 1, Q("0.1 in")),
    Sketcher.Constraint("DistanceX", -1, 1, 1, 3, Q("0.0875 in")),
    Sketcher.Constraint("DistanceX", 0, 2, 0, 1, Q("0.657769 mm")),
])
pad2 = body.newObject("PartDesign::Pad", "Pad001")
pad2.Profile = sketch9
pad2.Length = Q("0.02 in")

# Sketch on YZ plane
sketch10 = body.newObject("Sketcher::SketchObject", "Sketch009")
sketch10.AttachmentSupport = (doc.getObject("YZ_Plane"), [""])
sketch10.MapMode = "FlatFace"
sketch10.addGeometry([
    Part.LineSegment(Vector(3.6, -6.9, 0), Vector(2.5, -6.9, 0)),
    Part.LineSegment(Vector(2.5, -6.9, 0), Vector(2.5, -5.3, 0)),
    Part.LineSegment(Vector(2.5, -5.3, 0), Vector(3.6, -5.3, 0)),
    Part.LineSegment(Vector(3.6, -5.3, 0), Vector(3.6, -6.9, 0)),
], False)
sketch10.addConstraint([
    Sketcher.Constraint("Coincident", 0, 2, 1, 1),
    Sketcher.Constraint("Coincident", 1, 2, 2, 1),
    Sketcher.Constraint("Coincident", 2, 2, 3, 1),
    Sketcher.Constraint("Coincident", 3, 2, 0, 1),
    Sketcher.Constraint("Horizontal", 0),
    Sketcher.Constraint("Vertical", 1),
    Sketcher.Constraint("Horizontal", 2),
    Sketcher.Constraint("Vertical", 3),
    Sketcher.Constraint("DistanceX", 0, 2, 0, 1, Q("0.04 in")),
    Sketcher.Constraint("DistanceY", 1, 1, 1, 2, Q("0.06 in")),
    Sketcher.Constraint("DistanceX", -1, 1, 0, 2, Q("0.1 in")),
    Sketcher.Constraint("DistanceY", 0, 2, -1, 1, Q("0.27 in")),
])
pocket8 = body.newObject("PartDesign::Pocket", "Pocket007")
pocket8.Profile = sketch10
pocket8.Length = Q("0.015 in")
pocket8.Reversed = True

# Sketch on YZ plane
sketch11 = body.newObject("Sketcher::SketchObject", "Sketch010")
sketch11.AttachmentSupport = (doc.getObject("YZ_Plane"), [""])
sketch11.MapMode = "FlatFace"
sketch11.AttachmentOffset = App.Placement(Vector(0, 0, 0.175 * 25.4), App.Rotation())
sketch11.addGeometry([
    Part.LineSegment(Vector(3.6, 0, 0), Vector(2.5, 0, 0)),
    Part.LineSegment(Vector(2.5, 0, 0), Vector(2.5, -1.5, 0)),
    Part.LineSegment(Vector(2.5, -1.5, 0), Vector(3.6, -1.5, 0)),
    Part.LineSegment(Vector(3.6, -1.5, 0), Vector(3.6, 0, 0)),
], False)
sketch11.addConstraint([
    Sketcher.Constraint("Coincident", 0, 2, 1, 1),
    Sketcher.Constraint("Coincident", 1, 2, 2, 1),
    Sketcher.Constraint("Coincident", 2, 2, 3, 1),
    Sketcher.Constraint("Coincident", 3, 2, 0, 1),
    Sketcher.Constraint("Horizontal", 0),
    Sketcher.Constraint("Vertical", 1),
    Sketcher.Constraint("Horizontal", 2),
    Sketcher.Constraint("Vertical", 3),
    Sketcher.Constraint("PointOnObject", 0, 2, -1),
    Sketcher.Constraint("DistanceX", 0, 2, 0, 1, Q("0.04 in")),
    Sketcher.Constraint("DistanceY", 1, 2, 1, 1, Q("0.06 in")),
    Sketcher.Constraint("DistanceX", -1, 1, 0, 2, Q("0.1 in")),
])
pocket9 = body.newObject("PartDesign::Pocket", "Pocket008")
pocket9.Profile = sketch11
pocket9.Length = Q("0.015 in")

doc.recompute()
